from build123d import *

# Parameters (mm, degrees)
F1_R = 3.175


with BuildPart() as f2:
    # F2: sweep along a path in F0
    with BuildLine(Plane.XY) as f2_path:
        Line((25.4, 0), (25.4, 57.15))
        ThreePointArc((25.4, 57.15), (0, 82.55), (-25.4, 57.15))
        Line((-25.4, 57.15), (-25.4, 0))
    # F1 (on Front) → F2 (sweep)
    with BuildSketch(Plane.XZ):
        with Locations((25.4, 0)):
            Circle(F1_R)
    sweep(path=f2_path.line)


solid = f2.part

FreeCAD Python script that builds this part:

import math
import FreeCAD as App
import Part
import Sketcher
Q = App.Units.Quantity

doc = App.newDocument("Part")
body = doc.addObject("PartDesign::Body", "Body")

# Sketch on XZ plane
sketch1 = body.newObject("Sketcher::SketchObject", "Sketch")
sketch1.AttachmentSupport = (doc.getObject("XZ_Plane"), [""])
sketch1.MapMode = "FlatFace"
sketch1.addGeometry(Part.Circle(App.Vector(25.4, 0, 0), App.Vector(0, 0, 1), 3.175), False)
sketch1.addConstraint([
    Sketcher.Constraint("PointOnObject", 0, 3, -1),
    Sketcher.Constraint("Diameter", 0, Q("0.25 in")),
    Sketcher.Constraint("DistanceX", -1, 1, 0, 3, Q("1 in")),
])

# Sketch on XY plane
sketch2 = body.newObject("Sketcher::SketchObject", "Sketch001")
sketch2.AttachmentSupport = (doc.getObject("XY_Plane"), [""])
sketch2.MapMode = "FlatFace"
sketch2.addGeometry([
    Part.LineSegment(App.Vector(25.4, 0, 0), App.Vector(25.4, 57.15, 0)),
    Part.ArcOfCircle(Part.Circle(App.Vector(0, 57.15, 0), App.Vector(0, 0, 1), 25.4), math.radians(0), math.radians(180)),
    Part.LineSegment(App.Vector(-25.4, 57.15, 0), App.Vector(-25.4, 0, 0)),
], False)
sketch2.addConstraint([
    Sketcher.Constraint("Tangent", 0, 2, 1, 1),
    Sketcher.Constraint("Tangent", 1, 2, 2, 1),
    Sketcher.Constraint("Vertical", 0),
    Sketcher.Constraint("Vertical", 2),
    Sketcher.Constraint("Symmetric", 0, 1, 2, 2, -1, 1),
    Sketcher.Constraint("PointOnObject", 0, 1, -1),
    Sketcher.Constraint("Radius", 1, Q("1 in")),
    Sketcher.Constraint("DistanceY", 0, 1, 0, 2, Q("2.25 in")),
])
doc.recompute()

additivepipe = body.newObject("PartDesign::AdditivePipe", "AdditivePipe")
additivepipe.Profile = sketch1
additivepipe.Spine = (sketch2, ["Edge1", "Edge2", "Edge3"])

doc.recompute()
